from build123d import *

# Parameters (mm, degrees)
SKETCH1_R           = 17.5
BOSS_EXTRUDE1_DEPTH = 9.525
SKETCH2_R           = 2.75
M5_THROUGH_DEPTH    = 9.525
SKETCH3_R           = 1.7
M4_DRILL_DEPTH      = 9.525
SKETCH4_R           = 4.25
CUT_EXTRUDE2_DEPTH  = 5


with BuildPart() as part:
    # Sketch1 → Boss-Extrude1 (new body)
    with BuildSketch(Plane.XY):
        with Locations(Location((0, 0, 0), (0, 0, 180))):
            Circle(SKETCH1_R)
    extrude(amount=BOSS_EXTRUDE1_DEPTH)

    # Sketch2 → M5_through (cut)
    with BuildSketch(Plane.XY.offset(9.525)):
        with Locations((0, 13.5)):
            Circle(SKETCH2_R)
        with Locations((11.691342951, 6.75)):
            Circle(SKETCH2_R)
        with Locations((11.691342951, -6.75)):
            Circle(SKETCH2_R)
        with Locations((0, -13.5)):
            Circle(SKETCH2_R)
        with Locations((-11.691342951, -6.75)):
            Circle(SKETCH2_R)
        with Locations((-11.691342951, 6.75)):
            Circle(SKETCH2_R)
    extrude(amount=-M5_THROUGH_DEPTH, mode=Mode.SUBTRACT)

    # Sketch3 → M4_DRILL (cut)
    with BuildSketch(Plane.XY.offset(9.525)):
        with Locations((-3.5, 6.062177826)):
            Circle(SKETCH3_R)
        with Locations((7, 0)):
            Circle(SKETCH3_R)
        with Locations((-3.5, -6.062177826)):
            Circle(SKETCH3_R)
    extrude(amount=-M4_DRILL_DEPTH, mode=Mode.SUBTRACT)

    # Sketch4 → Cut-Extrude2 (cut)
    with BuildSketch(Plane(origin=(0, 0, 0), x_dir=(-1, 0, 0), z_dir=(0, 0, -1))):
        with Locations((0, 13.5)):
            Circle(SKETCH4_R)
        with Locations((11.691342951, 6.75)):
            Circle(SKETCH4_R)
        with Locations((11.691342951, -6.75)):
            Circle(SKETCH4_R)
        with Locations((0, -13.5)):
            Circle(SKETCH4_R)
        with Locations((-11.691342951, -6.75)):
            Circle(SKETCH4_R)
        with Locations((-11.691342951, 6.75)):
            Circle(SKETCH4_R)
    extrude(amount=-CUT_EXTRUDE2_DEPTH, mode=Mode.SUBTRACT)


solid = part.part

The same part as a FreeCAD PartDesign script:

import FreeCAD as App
import Part
import Sketcher

doc = App.newDocument("Part")
body = doc.addObject("PartDesign::Body", "Body")

sketch1 = body.newObject("Sketcher::SketchObject", "Sketch")
sketch1.AttachmentSupport = (doc.getObject("XY_Plane"), [""])
sketch1.MapMode = "FlatFace"
sketch1.addGeometry(Part.Circle(App.Vector(0, 0, 0), App.Vector(0, 0, 1), 17.5), False)
sketch1.addConstraint(Sketcher.Constraint("Coincident", 0, 3, -1, 1))
sketch1.addConstraint(Sketcher.Constraint("Diameter", 0, 35.0))
pad1 = body.newObject("PartDesign::Pad", "Pad")
pad1.Profile = sketch1
pad1.Length = 9.525

sketch2 = body.newObject("Sketcher::SketchObject", "Sketch001")
sketch2.AttachmentSupport = (doc.getObject("XY_Plane"), [""])
sketch2.MapMode = "FlatFace"
sketch2.AttachmentOffset = App.Placement(App.Vector(0, 0, 9.525), App.Rotation())
sketch2.addGeometry(Part.Circle(App.Vector(0, 13.5, 0), App.Vector(0, 0, 1), 2.75), False)
sketch2.addGeometry(Part.Circle(App.Vector(11.691343, 6.75, 0), App.Vector(0, 0, 1), 2.75), False)
sketch2.addGeometry(Part.Circle(App.Vector(11.691343, -6.75, 0), App.Vector(0, 0, 1), 2.75), False)
sketch2.addGeometry(Part.Circle(App.Vector(0, -13.5, 0), App.Vector(0, 0, 1), 2.75), False)
sketch2.addGeometry(Part.Circle(App.Vector(-11.691343, -6.75, 0), App.Vector(0, 0, 1), 2.75), False)
sketch2.addGeometry(Part.Circle(App.Vector(-11.691343, 6.75, 0), App.Vector(0, 0, 1), 2.75), False)
sketch2.addConstraint(Sketcher.Constraint("Equal", 0, 1))
sketch2.addConstraint(Sketcher.Constraint("Equal", 1, 2))
sketch2.addConstraint(Sketcher.Constraint("Equal", 2, 3))
sketch2.addConstraint(Sketcher.Constraint("Equal", 3, 4))
sketch2.addConstraint(Sketcher.Constraint("Equal", 4, 5))
sketch2.addConstraint(Sketcher.Constraint("Symmetric", 0, 3, 3, 3, -1, 1))
sketch2.addConstraint(Sketcher.Constraint("Symmetric", 1, 3, 4, 3, -1, 1))
sketch2.addConstraint(Sketcher.Constraint("Symmetric", 2, 3, 5, 3, -1, 1))
sketch2.addConstraint(Sketcher.Constraint("Symmetric", 2, 3, 4, 3, -2))
sketch2.addConstraint(Sketcher.Constraint("PointOnObject", 0, 3, -2))
sketch2.addConstraint(Sketcher.Constraint("Diameter", 0, 5.5))
sketch2.addConstraint(Sketcher.Constraint("DistanceY", 3, 3, 0, 3, 27.0))
sketch2.addConstraint(Sketcher.Constraint("DistanceY", 2, 3, 1, 3, 13.5))
sketch2.addConstraint(Sketcher.Constraint("DistanceX", -1, 1, 1, 3, 11.691343))
pocket1 = body.newObject("PartDesign::Pocket", "Pocket")
pocket1.Profile = sketch2
pocket1.Length = 9.525

sketch3 = body.newObject("Sketcher::SketchObject", "Sketch002")
sketch3.AttachmentSupport = (doc.getObject("XY_Plane"), [""])
sketch3.MapMode = "FlatFace"
sketch3.AttachmentOffset = App.Placement(App.Vector(0, 0, 9.525), App.Rotation())
sketch3.addGeometry(Part.Circle(App.Vector(-3.5, 6.062178, 0), App.Vector(0, 0, 1), 1.7), False)
sketch3.addGeometry(Part.Circle(App.Vector(7, 0, 0), App.Vector(0, 0, 1), 1.7), False)
sketch3.addGeometry(Part.Circle(App.Vector(-3.5, -6.062178, 0), App.Vector(0, 0, 1), 1.7), False)
sketch3.addConstraint(Sketcher.Constraint("Equal", 0, 1))
sketch3.addConstraint(Sketcher.Constraint("Equal", 1, 2))
sketch3.addConstraint(Sketcher.Constraint("Symmetric", 0, 3, 2, 3, -1))
sketch3.addConstraint(Sketcher.Constraint("PointOnObject", 1, 3, -1))
sketch3.addConstraint(Sketcher.Constraint("Diameter", 0, 3.4))
sketch3.addConstraint(Sketcher.Constraint("DistanceX", -1, 1, 1, 3, 7.0))
sketch3.addConstraint(Sketcher.Constraint("DistanceX", 0, 3, -1, 1, 3.5))
sketch3.addConstraint(Sketcher.Constraint("DistanceY", -1, 1, 0, 3, 6.062178))
pocket2 = body.newObject("PartDesign::Pocket", "Pocket001")
pocket2.Profile = sketch3
pocket2.Length = 9.525

sketch4 = body.newObject("Sketcher::SketchObject", "Sketch003")
sketch4.AttachmentSupport = (doc.getObject("XY_Plane"), [""])
sketch4.MapMode = "FlatFace"
sketch4.addGeometry(Part.Circle(App.Vector(0, 13.5, 0), App.Vector(0, 0, 1), 4.25), False)
sketch4.addGeometry(Part.Circle(App.Vector(-11.691343, 6.75, 0), App.Vector(0, 0, 1), 4.25), False)
sketch4.addGeometry(Part.Circle(App.Vector(-11.691343, -6.75, 0), App.Vector(0, 0, 1), 4.25), False)
sketch4.addGeometry(Part.Circle(App.Vector(0, -13.5, 0), App.Vector(0, 0, 1), 4.25), False)
sketch4.addGeometry(Part.Circle(App.Vector(11.691343, -6.75, 0), App.Vector(0, 0, 1), 4.25), False)
sketch4.addGeometry(Part.Circle(App.Vector(11.691343, 6.75, 0), App.Vector(0, 0, 1), 4.25), False)
sketch4.addConstraint(Sketcher.Constraint("Equal", 0, 1))
sketch4.addConstraint(Sketcher.Constraint("Equal", 1, 2))
sketch4.addConstraint(Sketcher.Constraint("Equal", 2, 3))
sketch4.addConstraint(Sketcher.Constraint("Equal", 3, 4))
sketch4.addConstraint(Sketcher.Constraint("Equal", 4, 5))
sketch4.addConstraint(Sketcher.Constraint("Symmetric", 0, 3, 3, 3, -1, 1))
sketch4.addConstraint(Sketcher.Constraint("Symmetric", 1, 3, 4, 3, -1, 1))
sketch4.addConstraint(Sketcher.Constraint("Symmetric", 2, 3, 5, 3, -1, 1))
sketch4.addConstraint(Sketcher.Constraint("Symmetric", 2, 3, 4, 3, -2))
sketch4.addConstraint(Sketcher.Constraint("PointOnObject", 0, 3, -2))
sketch4.addConstraint(Sketcher.Constraint("Diameter", 0, 8.5))
sketch4.addConstraint(Sketcher.Constraint("DistanceY", 3, 3, 0, 3, 27.0))
sketch4.addConstraint(Sketcher.Constraint("DistanceY", 2, 3, 1, 3, 13.5))
sketch4.addConstraint(Sketcher.Constraint("DistanceX", 1, 3, -1, 1, 11.691343))
pocket3 = body.newObject("PartDesign::Pocket", "Pocket002")
pocket3.Profile = sketch4
pocket3.Length = 5
pocket3.Reversed = True

doc.recompute()
